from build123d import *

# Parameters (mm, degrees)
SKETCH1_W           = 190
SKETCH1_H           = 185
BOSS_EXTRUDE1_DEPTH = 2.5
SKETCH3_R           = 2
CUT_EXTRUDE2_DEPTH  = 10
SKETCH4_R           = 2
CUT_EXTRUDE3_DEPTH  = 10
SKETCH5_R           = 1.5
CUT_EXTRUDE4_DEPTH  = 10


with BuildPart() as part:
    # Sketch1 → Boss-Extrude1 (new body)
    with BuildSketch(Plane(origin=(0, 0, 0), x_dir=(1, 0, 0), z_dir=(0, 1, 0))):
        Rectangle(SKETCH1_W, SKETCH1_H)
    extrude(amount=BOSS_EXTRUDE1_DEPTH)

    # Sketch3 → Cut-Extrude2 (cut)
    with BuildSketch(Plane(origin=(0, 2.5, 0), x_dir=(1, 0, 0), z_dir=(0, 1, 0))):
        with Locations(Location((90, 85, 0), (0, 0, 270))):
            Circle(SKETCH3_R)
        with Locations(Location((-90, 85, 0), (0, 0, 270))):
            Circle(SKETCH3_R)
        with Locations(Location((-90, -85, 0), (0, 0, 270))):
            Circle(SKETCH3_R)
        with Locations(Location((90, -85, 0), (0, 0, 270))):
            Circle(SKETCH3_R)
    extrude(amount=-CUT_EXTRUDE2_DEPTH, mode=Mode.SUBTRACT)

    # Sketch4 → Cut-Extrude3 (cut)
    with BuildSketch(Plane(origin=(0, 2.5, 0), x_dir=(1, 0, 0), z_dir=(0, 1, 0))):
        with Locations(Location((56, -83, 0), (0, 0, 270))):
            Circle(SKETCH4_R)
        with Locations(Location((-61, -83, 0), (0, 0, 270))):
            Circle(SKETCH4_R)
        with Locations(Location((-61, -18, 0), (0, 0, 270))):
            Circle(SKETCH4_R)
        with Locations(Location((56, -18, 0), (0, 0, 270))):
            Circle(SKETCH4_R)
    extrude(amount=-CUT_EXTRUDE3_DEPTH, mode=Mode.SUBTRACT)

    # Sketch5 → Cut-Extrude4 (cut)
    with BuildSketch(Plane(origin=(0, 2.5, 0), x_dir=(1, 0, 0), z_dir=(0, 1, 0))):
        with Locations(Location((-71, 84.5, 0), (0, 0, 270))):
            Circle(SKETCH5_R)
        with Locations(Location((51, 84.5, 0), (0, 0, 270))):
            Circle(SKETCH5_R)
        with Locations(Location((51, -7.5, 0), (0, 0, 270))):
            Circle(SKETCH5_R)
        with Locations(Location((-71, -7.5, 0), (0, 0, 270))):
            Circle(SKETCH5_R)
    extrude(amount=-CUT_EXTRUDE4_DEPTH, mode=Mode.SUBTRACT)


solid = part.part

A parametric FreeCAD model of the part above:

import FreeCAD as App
import Part
import Sketcher
Q = App.Units.Quantity


def add_polygon(sketch, points):
    """Adds a closed chain of lines whose ends are joined by coincident constraints."""
    first, n = sketch.GeometryCount, len(points)
    for a, b in zip(points, points[1:] + points[:1]):
        sketch.addGeometry(Part.LineSegment(App.Vector(*a, 0), App.Vector(*b, 0)), False)
    for i in range(n):
        sketch.addConstraint(Sketcher.Constraint("Coincident", first + i, 2, first + (i + 1) % n, 1))

doc = App.newDocument("Part")
params = doc.addObject("Spreadsheet::Sheet", "Params")
for row, (alias, value) in enumerate([
    ("sketch1_width", "190 mm"),
    ("sketch1_height", "185 mm"),
    ("pad1_length", "2.5 mm"),
    ("sketch2_diameter", "4 mm"),
    ("pocket1_length", "10 mm"),
    ("sketch3_diameter", "4 mm"),
    ("pocket2_length", "10 mm"),
    ("sketch4_diameter", "3 mm"),
    ("pocket3_length", "10 mm"),
], start=1):
    params.set(f"A{row}", alias)
    params.set(f"B{row}", "=" + value)
    params.setAlias(f"B{row}", alias)

body = doc.addObject("PartDesign::Body", "Body")

sketch1 = body.newObject("Sketcher::SketchObject", "Sketch")
sketch1.AttachmentSupport = (doc.getObject("XZ_Plane"), [""])
sketch1.MapMode = "FlatFace"
add_polygon(sketch1, [(-95, -92), (-95, 92), (95, 92), (95, -92)])
sketch1.addConstraint([
    Sketcher.Constraint("Vertical", 0),
    Sketcher.Constraint("Horizontal", 1),
    Sketcher.Constraint("Vertical", 2),
    Sketcher.Constraint("Horizontal", 3),
    Sketcher.Constraint("Symmetric", 0, 2, 2, 2, -1, 1),
    Sketcher.Constraint("DistanceX", 1, 1, 1, 2, Q("190 mm")),
    Sketcher.Constraint("DistanceY", 0, 1, 0, 2, Q("185 mm")),
])
sketch1.setExpression("Constraints[9]", "Params.sketch1_width")
sketch1.setExpression("Constraints[10]", "Params.sketch1_height")
pad1 = body.newObject("PartDesign::Pad", "Pad")
pad1.Profile = sketch1
pad1.setExpression("Length", "Params.pad1_length")
pad1.Reversed = True

sketch2 = body.newObject("Sketcher::SketchObject", "Sketch001")
sketch2.AttachmentSupport = (doc.getObject("XZ_Plane"), [""])
sketch2.MapMode = "FlatFace"
sketch2.AttachmentOffset = App.Placement(App.Vector(0, 0, -2.5), App.Rotation())
sketch2.addGeometry([
    Part.Circle(App.Vector(90, -85, 0), App.Vector(0, 0, 1), 2),
    Part.Circle(App.Vector(-90, -85, 0), App.Vector(0, 0, 1), 2),
    Part.Circle(App.Vector(-90, 85, 0), App.Vector(0, 0, 1), 2),
    Part.Circle(App.Vector(90, 85, 0), App.Vector(0, 0, 1), 2),
], False)
sketch2.addConstraint([
    Sketcher.Constraint("Equal", 0, 1),
    Sketcher.Constraint("Equal", 1, 2),
    Sketcher.Constraint("Equal", 2, 3),
    Sketcher.Constraint("Symmetric", 0, 3, 2, 3, -1, 1),
    Sketcher.Constraint("Symmetric", 1, 3, 3, 3, -1, 1),
    Sketcher.Constraint("Symmetric", 0, 3, 1, 3, -2),
    Sketcher.Constraint("Diameter", 0, Q("4 mm")),
    Sketcher.Constraint("DistanceX", -1, 1, 0, 3, Q("90 mm")),
    Sketcher.Constraint("DistanceY", 0, 3, -1, 1, Q("85 mm")),
])
sketch2.setExpression("Constraints[6]", "Params.sketch2_diameter")
pocket1 = body.newObject("PartDesign::Pocket", "Pocket")
pocket1.Profile = sketch2
pocket1.setExpression("Length", "Params.pocket1_length")
pocket1.Reversed = True

sketch3 = body.newObject("Sketcher::SketchObject", "Sketch002")
sketch3.AttachmentSupport = (doc.getObject("XZ_Plane"), [""])
sketch3.MapMode = "FlatFace"
sketch3.AttachmentOffset = App.Placement(App.Vector(0, 0, -2.5), App.Rotation())
sketch3.addGeometry([
    Part.Circle(App.Vector(56, 83, 0), App.Vector(0, 0, 1), 2),
    Part.Circle(App.Vector(-61, 83, 0), App.Vector(0, 0, 1), 2),
    Part.Circle(App.Vector(-61, 18, 0), App.Vector(0, 0, 1), 2),
    Part.Circle(App.Vector(56, 18, 0), App.Vector(0, 0, 1), 2),
], False)
sketch3.addConstraint([
    Sketcher.Constraint("Equal", 0, 1),
    Sketcher.Constraint("Equal", 1, 2),
    Sketcher.Constraint("Equal", 2, 3),
    Sketcher.Constraint("Horizontal", 0, 3, 1, 3),
    Sketcher.Constraint("Horizontal", 2, 3, 3, 3),
    Sketcher.Constraint("Vertical", 1, 3, 2, 3),
    Sketcher.Constraint("Vertical", 0, 3, 3, 3),
    Sketcher.Constraint("Diameter", 0, Q("4 mm")),
    Sketcher.Constraint("DistanceX", -1, 1, 0, 3, Q("56 mm")),
    Sketcher.Constraint("DistanceY", -1, 1, 0, 3, Q("83 mm")),
    Sketcher.Constraint("DistanceX", 1, 3, -1, 1, Q("61 mm")),
    Sketcher.Constraint("DistanceY", -1, 1, 2, 3, Q("18 mm")),
])
sketch3.setExpression("Constraints[7]", "Params.sketch3_diameter")
pocket2 = body.newObject("PartDesign::Pocket", "Pocket001")
pocket2.Profile = sketch3
pocket2.setExpression("Length", "Params.pocket2_length")
pocket2.Reversed = True

sketch4 = body.newObject("Sketcher::SketchObject", "Sketch003")
sketch4.AttachmentSupport = (doc.getObject("XZ_Plane"), [""])
sketch4.MapMode = "FlatFace"
sketch4.AttachmentOffset = App.Placement(App.Vector(0, 0, -2.5), App.Rotation())
sketch4.addGeometry([
    Part.Circle(App.Vector(-71, -84.5, 0), App.Vector(0, 0, 1), 1.5),
    Part.Circle(App.Vector(51, -84.5, 0), App.Vector(0, 0, 1), 1.5),
    Part.Circle(App.Vector(51, 7.5, 0), App.Vector(0, 0, 1), 1.5),
    Part.Circle(App.Vector(-71, 7.5, 0), App.Vector(0, 0, 1), 1.5),
], False)
sketch4.addConstraint([
    Sketcher.Constraint("Equal", 0, 1),
    Sketcher.Constraint("Equal", 1, 2),
    Sketcher.Constraint("Equal", 2, 3),
    Sketcher.Constraint("Horizontal", 0, 3, 1, 3),
    Sketcher.Constraint("Horizontal", 2, 3, 3, 3),
    Sketcher.Constraint("Vertical", 1, 3, 2, 3),
    Sketcher.Constraint("Vertical", 0, 3, 3, 3),
    Sketcher.Constraint("Diameter", 0, Q("3 mm")),
    Sketcher.Constraint("DistanceX", 0, 3, -1, 1, Q("71 mm")),
    Sketcher.Constraint("DistanceX", -1, 1, 1, 3, Q("51 mm")),
    Sketcher.Constraint("DistanceY", 1, 3, 2, 3, Q("92 mm")),
    Sketcher.Constraint("DistanceY", 0, 3, -1, 1, Q("84.5 mm")),
])
sketch4.setExpression("Constraints[7]", "Params.sketch4_diameter")
pocket3 = body.newObject("PartDesign::Pocket", "Pocket002")
pocket3.Profile = sketch4
pocket3.setExpression("Length", "Params.pocket3_length")
pocket3.Reversed = True

doc.recompute()
